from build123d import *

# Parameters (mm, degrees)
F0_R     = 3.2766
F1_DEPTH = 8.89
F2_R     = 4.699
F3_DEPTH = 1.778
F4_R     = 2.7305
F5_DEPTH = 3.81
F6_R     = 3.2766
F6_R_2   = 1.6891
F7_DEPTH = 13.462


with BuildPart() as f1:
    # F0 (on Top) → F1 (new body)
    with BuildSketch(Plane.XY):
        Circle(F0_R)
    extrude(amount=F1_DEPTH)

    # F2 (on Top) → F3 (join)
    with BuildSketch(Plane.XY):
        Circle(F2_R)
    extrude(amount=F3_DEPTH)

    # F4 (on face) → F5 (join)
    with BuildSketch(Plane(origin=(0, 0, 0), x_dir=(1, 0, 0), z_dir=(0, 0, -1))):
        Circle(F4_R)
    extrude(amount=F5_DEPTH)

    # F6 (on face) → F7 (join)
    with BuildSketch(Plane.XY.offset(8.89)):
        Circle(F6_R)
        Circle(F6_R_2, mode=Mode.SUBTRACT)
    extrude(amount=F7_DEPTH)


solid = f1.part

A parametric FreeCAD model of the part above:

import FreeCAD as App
import Part
import Sketcher
from FreeCAD import Vector
Q = App.Units.Quantity

doc = App.newDocument("Part")
params = doc.addObject("Spreadsheet::Sheet", "Params")
for row, (alias, value) in enumerate([
    ("sketch1_diameter", "0.258 in"),
    ("pad1_length", "0.35 in"),
    ("sketch2_diameter", "0.37 in"),
    ("pad2_length", "0.07 in"),
    ("sketch3_diameter", "0.215 in"),
    ("pad3_length", "0.15 in"),
    ("sketch4_diameter", "0.258 in"),
    ("sketch4_diameter2", "0.133 in"),
    ("pad4_length", "0.53 in"),
], start=1):
    params.set(f"A{row}", alias)
    params.set(f"B{row}", "=" + value)
    params.setAlias(f"B{row}", alias)

body = doc.addObject("PartDesign::Body", "Body")

# Sketch on XY plane
sketch1 = body.newObject("Sketcher::SketchObject", "Sketch")
sketch1.AttachmentSupport = (doc.getObject("XY_Plane"), [""])
sketch1.MapMode = "FlatFace"
sketch1.addGeometry(Part.Circle(Vector(0, 0, 0), Vector(0, 0, 1), 3.3), False)
sketch1.addConstraint([
    Sketcher.Constraint("Coincident", 0, 3, -1, 1),
    Sketcher.Constraint("Diameter", 0, Q("0.258 in")),
])
sketch1.setExpression("Constraints[1]", "Params.sketch1_diameter")
pad1 = body.newObject("PartDesign::Pad", "Pad")
pad1.Profile = sketch1
pad1.setExpression("Length", "Params.pad1_length")

# Sketch on XY plane
sketch2 = body.newObject("Sketcher::SketchObject", "Sketch001")
sketch2.AttachmentSupport = (doc.getObject("XY_Plane"), [""])
sketch2.MapMode = "FlatFace"
sketch2.addGeometry(Part.Circle(Vector(0, 0, 0), Vector(0, 0, 1), 4.7), False)
sketch2.addConstraint([
    Sketcher.Constraint("Coincident", 0, 3, -1, 1),
    Sketcher.Constraint("Diameter", 0, Q("0.37 in")),
])
sketch2.setExpression("Constraints[1]", "Params.sketch2_diameter")
pad2 = body.newObject("PartDesign::Pad", "Pad001")
pad2.Profile = sketch2
pad2.setExpression("Length", "Params.pad2_length")

# Sketch on XY plane
sketch3 = body.newObject("Sketcher::SketchObject", "Sketch002")
sketch3.AttachmentSupport = (doc.getObject("XY_Plane"), [""])
sketch3.MapMode = "FlatFace"
sketch3.addGeometry(Part.Circle(Vector(0, 0, 0), Vector(0, 0, 1), 2.7), False)
sketch3.addConstraint([
    Sketcher.Constraint("Coincident", 0, 3, -1, 1),
    Sketcher.Constraint("Diameter", 0, Q("0.215 in")),
])
sketch3.setExpression("Constraints[1]", "Params.sketch3_diameter")
pad3 = body.newObject("PartDesign::Pad", "Pad002")
pad3.Profile = sketch3
pad3.setExpression("Length", "Params.pad3_length")
pad3.Reversed = True

# Sketch on XY plane
sketch4 = body.newObject("Sketcher::SketchObject", "Sketch003")
sketch4.AttachmentSupport = (doc.getObject("XY_Plane"), [""])
sketch4.MapMode = "FlatFace"
sketch4.AttachmentOffset = App.Placement(Vector(0, 0, 0.35 * 25.4), App.Rotation())
sketch4.addGeometry([
    Part.Circle(Vector(0, 0, 0), Vector(0, 0, 1), 3.3),
    Part.Circle(Vector(0, 0, 0), Vector(0, 0, 1), 1.7),
], False)
sketch4.addConstraint([
    Sketcher.Constraint("Coincident", 0, 3, -1, 1),
    Sketcher.Constraint("Coincident", 1, 3, -1, 1),
    Sketcher.Constraint("Diameter", 0, Q("0.258 in")),
    Sketcher.Constraint("Diameter", 1, Q("0.133 in")),
])
sketch4.setExpression("Constraints[2]", "Params.sketch4_diameter")
sketch4.setExpression("Constraints[3]", "Params.sketch4_diameter2")
pad4 = body.newObject("PartDesign::Pad", "Pad003")
pad4.Profile = sketch4
pad4.setExpression("Length", "Params.pad4_length")

doc.recompute()
